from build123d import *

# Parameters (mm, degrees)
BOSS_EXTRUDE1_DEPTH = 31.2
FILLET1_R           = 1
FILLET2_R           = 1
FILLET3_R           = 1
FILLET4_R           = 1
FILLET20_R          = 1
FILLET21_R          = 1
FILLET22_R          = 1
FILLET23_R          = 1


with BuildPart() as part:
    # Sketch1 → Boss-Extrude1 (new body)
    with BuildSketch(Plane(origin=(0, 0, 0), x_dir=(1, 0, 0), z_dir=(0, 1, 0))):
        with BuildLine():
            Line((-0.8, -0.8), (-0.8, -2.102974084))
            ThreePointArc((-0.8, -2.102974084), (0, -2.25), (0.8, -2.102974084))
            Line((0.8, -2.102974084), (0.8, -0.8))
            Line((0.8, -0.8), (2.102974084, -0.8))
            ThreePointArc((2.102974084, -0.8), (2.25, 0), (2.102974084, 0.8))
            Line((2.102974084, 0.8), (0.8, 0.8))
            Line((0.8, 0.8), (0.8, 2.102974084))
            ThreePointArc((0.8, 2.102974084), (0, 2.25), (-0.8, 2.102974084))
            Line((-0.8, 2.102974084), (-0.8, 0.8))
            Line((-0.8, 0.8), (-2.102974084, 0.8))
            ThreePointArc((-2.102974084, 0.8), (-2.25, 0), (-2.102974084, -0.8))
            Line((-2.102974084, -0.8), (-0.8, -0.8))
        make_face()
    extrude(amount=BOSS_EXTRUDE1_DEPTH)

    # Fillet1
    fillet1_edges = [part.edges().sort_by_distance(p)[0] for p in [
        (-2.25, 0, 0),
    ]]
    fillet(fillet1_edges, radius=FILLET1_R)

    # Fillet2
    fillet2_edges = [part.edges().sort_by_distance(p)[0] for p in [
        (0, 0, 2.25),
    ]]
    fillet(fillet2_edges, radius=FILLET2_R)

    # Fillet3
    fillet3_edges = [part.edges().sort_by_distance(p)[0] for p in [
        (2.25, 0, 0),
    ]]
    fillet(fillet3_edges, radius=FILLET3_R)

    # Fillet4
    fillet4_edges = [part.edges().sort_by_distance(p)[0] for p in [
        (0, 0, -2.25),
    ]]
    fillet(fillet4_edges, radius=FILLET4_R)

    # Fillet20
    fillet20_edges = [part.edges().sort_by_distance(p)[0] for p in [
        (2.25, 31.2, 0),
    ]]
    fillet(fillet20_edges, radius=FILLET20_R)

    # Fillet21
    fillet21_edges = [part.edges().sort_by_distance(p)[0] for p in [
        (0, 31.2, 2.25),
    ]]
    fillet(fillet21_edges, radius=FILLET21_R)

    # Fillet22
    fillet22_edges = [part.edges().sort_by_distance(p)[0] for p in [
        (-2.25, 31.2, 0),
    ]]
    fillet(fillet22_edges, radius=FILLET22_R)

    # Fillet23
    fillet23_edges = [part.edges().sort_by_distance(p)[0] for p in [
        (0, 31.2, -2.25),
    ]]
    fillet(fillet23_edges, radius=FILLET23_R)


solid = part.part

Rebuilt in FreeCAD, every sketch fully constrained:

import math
import FreeCAD as App
import Part
import Sketcher
from FreeCAD import Vector


def edges_at(feature, points):
    """Names of the edges that pass closest to the given points."""
    edges = feature.Shape.Edges
    near = lambda p: min(range(len(edges)), key=lambda i: edges[i].distToShape(Part.Vertex(*p))[0])
    return sorted({f"Edge{near(p) + 1}" for p in points})

doc = App.newDocument("Part")
body = doc.addObject("PartDesign::Body", "Body")

# Sketch on XZ plane
sketch1 = body.newObject("Sketcher::SketchObject", "Sketch")
sketch1.AttachmentSupport = (doc.getObject("XZ_Plane"), [""])
sketch1.MapMode = "FlatFace"
sketch1.addGeometry([
    Part.LineSegment(Vector(-0.8, 0.8, 0), Vector(-0.8, 2.1, 0)),  # 0
    Part.ArcOfCircle(Part.Circle(Vector(0, 0, 0), Vector(0, 0, 1), 2.2), math.radians(69), math.radians(111)),  # 1
    Part.LineSegment(Vector(0.8, 2.1, 0), Vector(0.8, 0.8, 0)),  # 2
    Part.LineSegment(Vector(0.8, 0.8, 0), Vector(2.1, 0.8, 0)),  # 3
    Part.ArcOfCircle(Part.Circle(Vector(0, 0, 0), Vector(0, 0, 1), 2.2), math.radians(-21), math.radians(21)),  # 4
    Part.LineSegment(Vector(2.1, -0.8, 0), Vector(0.8, -0.8, 0)),  # 5
    Part.LineSegment(Vector(0.8, -0.8, 0), Vector(0.8, -2.1, 0)),  # 6
    Part.ArcOfCircle(Part.Circle(Vector(0, 0, 0), Vector(0, 0, 1), 2.2), math.radians(-111), math.radians(-69)),  # 7
    Part.LineSegment(Vector(-0.8, -2.1, 0), Vector(-0.8, -0.8, 0)),  # 8
    Part.LineSegment(Vector(-0.8, -0.8, 0), Vector(-2.1, -0.8, 0)),  # 9
    Part.ArcOfCircle(Part.Circle(Vector(0, 0, 0), Vector(0, 0, 1), 2.2), math.radians(159), math.radians(201)),  # 10
    Part.LineSegment(Vector(-2.1, 0.8, 0), Vector(-0.8, 0.8, 0)),  # 11
], False)
sketch1.addConstraint([
    Sketcher.Constraint("Coincident", 0, 2, 1, 2),
    Sketcher.Constraint("Coincident", 1, 1, 2, 1),
    Sketcher.Constraint("Coincident", 2, 2, 3, 1),
    Sketcher.Constraint("Coincident", 3, 2, 4, 2),
    Sketcher.Constraint("Coincident", 4, 1, 5, 1),
    Sketcher.Constraint("Coincident", 5, 2, 6, 1),
    Sketcher.Constraint("Coincident", 6, 2, 7, 2),
    Sketcher.Constraint("Coincident", 7, 1, 8, 1),
    Sketcher.Constraint("Coincident", 8, 2, 9, 1),
    Sketcher.Constraint("Coincident", 9, 2, 10, 2),
    Sketcher.Constraint("Coincident", 10, 1, 11, 1),
    Sketcher.Constraint("Coincident", 11, 2, 0, 1),
    Sketcher.Constraint("Vertical", 0),
    Sketcher.Constraint("Vertical", 2),
    Sketcher.Constraint("Horizontal", 3),
    Sketcher.Constraint("Horizontal", 5),
    Sketcher.Constraint("Vertical", 6),
    Sketcher.Constraint("Vertical", 8),
    Sketcher.Constraint("Horizontal", 9),
    Sketcher.Constraint("Horizontal", 11),
    Sketcher.Constraint("Coincident", 1, 3, -1, 1),
    Sketcher.Constraint("Coincident", 4, 3, -1, 1),
    Sketcher.Constraint("Coincident", 7, 3, -1, 1),
    Sketcher.Constraint("Coincident", 10, 3, -1, 1),
    Sketcher.Constraint("Equal", 1, 4),
    Sketcher.Constraint("Equal", 4, 7),
    Sketcher.Constraint("Equal", 7, 10),
    Sketcher.Constraint("Symmetric", 2, 2, 8, 2, -1, 1),
    Sketcher.Constraint("Symmetric", 5, 2, 11, 2, -1, 1),
    Sketcher.Constraint("Symmetric", 5, 2, 8, 2, -2),
    Sketcher.Constraint("Equal", 11, 0),
    Sketcher.Constraint("Radius", 1, 2.25),
    Sketcher.Constraint("DistanceX", 0, 2, -1, 1, 0.8),
])
pad1 = body.newObject("PartDesign::Pad", "Pad")
pad1.Profile = sketch1
pad1.Length = 31.2
pad1.Reversed = True
doc.recompute()

fillet = body.newObject("PartDesign::Fillet", "Fillet")
fillet.Base = (pad1, edges_at(pad1, [(-2.25, 0, 0)]))
fillet.Radius = 1
doc.recompute()

fillet2 = body.newObject("PartDesign::Fillet", "Fillet001")
fillet2.Base = (fillet, edges_at(fillet, [(0, 0, 2.25)]))
fillet2.Radius = 1
doc.recompute()

fillet3 = body.newObject("PartDesign::Fillet", "Fillet002")
fillet3.Base = (fillet2, edges_at(fillet2, [(2.25, 0, 0)]))
fillet3.Radius = 1
doc.recompute()

fillet4 = body.newObject("PartDesign::Fillet", "Fillet003")
fillet4.Base = (fillet3, edges_at(fillet3, [(0, 0, -2.25)]))
fillet4.Radius = 1
doc.recompute()

fillet5 = body.newObject("PartDesign::Fillet", "Fillet004")
fillet5.Base = (fillet4, edges_at(fillet4, [(2.25, 31.2, 0)]))
fillet5.Radius = 1
doc.recompute()

fillet6 = body.newObject("PartDesign::Fillet", "Fillet005")
fillet6.Base = (fillet5, edges_at(fillet5, [(0, 31.2, 2.25)]))
fillet6.Radius = 1
doc.recompute()

fillet7 = body.newObject("PartDesign::Fillet", "Fillet006")
fillet7.Base = (fillet6, edges_at(fillet6, [(-2.25, 31.2, 0)]))
fillet7.Radius = 1
doc.recompute()

fillet8 = body.newObject("PartDesign::Fillet", "Fillet007")
fillet8.Base = (fillet7, edges_at(fillet7, [(0, 31.2, -2.25)]))
fillet8.Radius = 1

doc.recompute()
